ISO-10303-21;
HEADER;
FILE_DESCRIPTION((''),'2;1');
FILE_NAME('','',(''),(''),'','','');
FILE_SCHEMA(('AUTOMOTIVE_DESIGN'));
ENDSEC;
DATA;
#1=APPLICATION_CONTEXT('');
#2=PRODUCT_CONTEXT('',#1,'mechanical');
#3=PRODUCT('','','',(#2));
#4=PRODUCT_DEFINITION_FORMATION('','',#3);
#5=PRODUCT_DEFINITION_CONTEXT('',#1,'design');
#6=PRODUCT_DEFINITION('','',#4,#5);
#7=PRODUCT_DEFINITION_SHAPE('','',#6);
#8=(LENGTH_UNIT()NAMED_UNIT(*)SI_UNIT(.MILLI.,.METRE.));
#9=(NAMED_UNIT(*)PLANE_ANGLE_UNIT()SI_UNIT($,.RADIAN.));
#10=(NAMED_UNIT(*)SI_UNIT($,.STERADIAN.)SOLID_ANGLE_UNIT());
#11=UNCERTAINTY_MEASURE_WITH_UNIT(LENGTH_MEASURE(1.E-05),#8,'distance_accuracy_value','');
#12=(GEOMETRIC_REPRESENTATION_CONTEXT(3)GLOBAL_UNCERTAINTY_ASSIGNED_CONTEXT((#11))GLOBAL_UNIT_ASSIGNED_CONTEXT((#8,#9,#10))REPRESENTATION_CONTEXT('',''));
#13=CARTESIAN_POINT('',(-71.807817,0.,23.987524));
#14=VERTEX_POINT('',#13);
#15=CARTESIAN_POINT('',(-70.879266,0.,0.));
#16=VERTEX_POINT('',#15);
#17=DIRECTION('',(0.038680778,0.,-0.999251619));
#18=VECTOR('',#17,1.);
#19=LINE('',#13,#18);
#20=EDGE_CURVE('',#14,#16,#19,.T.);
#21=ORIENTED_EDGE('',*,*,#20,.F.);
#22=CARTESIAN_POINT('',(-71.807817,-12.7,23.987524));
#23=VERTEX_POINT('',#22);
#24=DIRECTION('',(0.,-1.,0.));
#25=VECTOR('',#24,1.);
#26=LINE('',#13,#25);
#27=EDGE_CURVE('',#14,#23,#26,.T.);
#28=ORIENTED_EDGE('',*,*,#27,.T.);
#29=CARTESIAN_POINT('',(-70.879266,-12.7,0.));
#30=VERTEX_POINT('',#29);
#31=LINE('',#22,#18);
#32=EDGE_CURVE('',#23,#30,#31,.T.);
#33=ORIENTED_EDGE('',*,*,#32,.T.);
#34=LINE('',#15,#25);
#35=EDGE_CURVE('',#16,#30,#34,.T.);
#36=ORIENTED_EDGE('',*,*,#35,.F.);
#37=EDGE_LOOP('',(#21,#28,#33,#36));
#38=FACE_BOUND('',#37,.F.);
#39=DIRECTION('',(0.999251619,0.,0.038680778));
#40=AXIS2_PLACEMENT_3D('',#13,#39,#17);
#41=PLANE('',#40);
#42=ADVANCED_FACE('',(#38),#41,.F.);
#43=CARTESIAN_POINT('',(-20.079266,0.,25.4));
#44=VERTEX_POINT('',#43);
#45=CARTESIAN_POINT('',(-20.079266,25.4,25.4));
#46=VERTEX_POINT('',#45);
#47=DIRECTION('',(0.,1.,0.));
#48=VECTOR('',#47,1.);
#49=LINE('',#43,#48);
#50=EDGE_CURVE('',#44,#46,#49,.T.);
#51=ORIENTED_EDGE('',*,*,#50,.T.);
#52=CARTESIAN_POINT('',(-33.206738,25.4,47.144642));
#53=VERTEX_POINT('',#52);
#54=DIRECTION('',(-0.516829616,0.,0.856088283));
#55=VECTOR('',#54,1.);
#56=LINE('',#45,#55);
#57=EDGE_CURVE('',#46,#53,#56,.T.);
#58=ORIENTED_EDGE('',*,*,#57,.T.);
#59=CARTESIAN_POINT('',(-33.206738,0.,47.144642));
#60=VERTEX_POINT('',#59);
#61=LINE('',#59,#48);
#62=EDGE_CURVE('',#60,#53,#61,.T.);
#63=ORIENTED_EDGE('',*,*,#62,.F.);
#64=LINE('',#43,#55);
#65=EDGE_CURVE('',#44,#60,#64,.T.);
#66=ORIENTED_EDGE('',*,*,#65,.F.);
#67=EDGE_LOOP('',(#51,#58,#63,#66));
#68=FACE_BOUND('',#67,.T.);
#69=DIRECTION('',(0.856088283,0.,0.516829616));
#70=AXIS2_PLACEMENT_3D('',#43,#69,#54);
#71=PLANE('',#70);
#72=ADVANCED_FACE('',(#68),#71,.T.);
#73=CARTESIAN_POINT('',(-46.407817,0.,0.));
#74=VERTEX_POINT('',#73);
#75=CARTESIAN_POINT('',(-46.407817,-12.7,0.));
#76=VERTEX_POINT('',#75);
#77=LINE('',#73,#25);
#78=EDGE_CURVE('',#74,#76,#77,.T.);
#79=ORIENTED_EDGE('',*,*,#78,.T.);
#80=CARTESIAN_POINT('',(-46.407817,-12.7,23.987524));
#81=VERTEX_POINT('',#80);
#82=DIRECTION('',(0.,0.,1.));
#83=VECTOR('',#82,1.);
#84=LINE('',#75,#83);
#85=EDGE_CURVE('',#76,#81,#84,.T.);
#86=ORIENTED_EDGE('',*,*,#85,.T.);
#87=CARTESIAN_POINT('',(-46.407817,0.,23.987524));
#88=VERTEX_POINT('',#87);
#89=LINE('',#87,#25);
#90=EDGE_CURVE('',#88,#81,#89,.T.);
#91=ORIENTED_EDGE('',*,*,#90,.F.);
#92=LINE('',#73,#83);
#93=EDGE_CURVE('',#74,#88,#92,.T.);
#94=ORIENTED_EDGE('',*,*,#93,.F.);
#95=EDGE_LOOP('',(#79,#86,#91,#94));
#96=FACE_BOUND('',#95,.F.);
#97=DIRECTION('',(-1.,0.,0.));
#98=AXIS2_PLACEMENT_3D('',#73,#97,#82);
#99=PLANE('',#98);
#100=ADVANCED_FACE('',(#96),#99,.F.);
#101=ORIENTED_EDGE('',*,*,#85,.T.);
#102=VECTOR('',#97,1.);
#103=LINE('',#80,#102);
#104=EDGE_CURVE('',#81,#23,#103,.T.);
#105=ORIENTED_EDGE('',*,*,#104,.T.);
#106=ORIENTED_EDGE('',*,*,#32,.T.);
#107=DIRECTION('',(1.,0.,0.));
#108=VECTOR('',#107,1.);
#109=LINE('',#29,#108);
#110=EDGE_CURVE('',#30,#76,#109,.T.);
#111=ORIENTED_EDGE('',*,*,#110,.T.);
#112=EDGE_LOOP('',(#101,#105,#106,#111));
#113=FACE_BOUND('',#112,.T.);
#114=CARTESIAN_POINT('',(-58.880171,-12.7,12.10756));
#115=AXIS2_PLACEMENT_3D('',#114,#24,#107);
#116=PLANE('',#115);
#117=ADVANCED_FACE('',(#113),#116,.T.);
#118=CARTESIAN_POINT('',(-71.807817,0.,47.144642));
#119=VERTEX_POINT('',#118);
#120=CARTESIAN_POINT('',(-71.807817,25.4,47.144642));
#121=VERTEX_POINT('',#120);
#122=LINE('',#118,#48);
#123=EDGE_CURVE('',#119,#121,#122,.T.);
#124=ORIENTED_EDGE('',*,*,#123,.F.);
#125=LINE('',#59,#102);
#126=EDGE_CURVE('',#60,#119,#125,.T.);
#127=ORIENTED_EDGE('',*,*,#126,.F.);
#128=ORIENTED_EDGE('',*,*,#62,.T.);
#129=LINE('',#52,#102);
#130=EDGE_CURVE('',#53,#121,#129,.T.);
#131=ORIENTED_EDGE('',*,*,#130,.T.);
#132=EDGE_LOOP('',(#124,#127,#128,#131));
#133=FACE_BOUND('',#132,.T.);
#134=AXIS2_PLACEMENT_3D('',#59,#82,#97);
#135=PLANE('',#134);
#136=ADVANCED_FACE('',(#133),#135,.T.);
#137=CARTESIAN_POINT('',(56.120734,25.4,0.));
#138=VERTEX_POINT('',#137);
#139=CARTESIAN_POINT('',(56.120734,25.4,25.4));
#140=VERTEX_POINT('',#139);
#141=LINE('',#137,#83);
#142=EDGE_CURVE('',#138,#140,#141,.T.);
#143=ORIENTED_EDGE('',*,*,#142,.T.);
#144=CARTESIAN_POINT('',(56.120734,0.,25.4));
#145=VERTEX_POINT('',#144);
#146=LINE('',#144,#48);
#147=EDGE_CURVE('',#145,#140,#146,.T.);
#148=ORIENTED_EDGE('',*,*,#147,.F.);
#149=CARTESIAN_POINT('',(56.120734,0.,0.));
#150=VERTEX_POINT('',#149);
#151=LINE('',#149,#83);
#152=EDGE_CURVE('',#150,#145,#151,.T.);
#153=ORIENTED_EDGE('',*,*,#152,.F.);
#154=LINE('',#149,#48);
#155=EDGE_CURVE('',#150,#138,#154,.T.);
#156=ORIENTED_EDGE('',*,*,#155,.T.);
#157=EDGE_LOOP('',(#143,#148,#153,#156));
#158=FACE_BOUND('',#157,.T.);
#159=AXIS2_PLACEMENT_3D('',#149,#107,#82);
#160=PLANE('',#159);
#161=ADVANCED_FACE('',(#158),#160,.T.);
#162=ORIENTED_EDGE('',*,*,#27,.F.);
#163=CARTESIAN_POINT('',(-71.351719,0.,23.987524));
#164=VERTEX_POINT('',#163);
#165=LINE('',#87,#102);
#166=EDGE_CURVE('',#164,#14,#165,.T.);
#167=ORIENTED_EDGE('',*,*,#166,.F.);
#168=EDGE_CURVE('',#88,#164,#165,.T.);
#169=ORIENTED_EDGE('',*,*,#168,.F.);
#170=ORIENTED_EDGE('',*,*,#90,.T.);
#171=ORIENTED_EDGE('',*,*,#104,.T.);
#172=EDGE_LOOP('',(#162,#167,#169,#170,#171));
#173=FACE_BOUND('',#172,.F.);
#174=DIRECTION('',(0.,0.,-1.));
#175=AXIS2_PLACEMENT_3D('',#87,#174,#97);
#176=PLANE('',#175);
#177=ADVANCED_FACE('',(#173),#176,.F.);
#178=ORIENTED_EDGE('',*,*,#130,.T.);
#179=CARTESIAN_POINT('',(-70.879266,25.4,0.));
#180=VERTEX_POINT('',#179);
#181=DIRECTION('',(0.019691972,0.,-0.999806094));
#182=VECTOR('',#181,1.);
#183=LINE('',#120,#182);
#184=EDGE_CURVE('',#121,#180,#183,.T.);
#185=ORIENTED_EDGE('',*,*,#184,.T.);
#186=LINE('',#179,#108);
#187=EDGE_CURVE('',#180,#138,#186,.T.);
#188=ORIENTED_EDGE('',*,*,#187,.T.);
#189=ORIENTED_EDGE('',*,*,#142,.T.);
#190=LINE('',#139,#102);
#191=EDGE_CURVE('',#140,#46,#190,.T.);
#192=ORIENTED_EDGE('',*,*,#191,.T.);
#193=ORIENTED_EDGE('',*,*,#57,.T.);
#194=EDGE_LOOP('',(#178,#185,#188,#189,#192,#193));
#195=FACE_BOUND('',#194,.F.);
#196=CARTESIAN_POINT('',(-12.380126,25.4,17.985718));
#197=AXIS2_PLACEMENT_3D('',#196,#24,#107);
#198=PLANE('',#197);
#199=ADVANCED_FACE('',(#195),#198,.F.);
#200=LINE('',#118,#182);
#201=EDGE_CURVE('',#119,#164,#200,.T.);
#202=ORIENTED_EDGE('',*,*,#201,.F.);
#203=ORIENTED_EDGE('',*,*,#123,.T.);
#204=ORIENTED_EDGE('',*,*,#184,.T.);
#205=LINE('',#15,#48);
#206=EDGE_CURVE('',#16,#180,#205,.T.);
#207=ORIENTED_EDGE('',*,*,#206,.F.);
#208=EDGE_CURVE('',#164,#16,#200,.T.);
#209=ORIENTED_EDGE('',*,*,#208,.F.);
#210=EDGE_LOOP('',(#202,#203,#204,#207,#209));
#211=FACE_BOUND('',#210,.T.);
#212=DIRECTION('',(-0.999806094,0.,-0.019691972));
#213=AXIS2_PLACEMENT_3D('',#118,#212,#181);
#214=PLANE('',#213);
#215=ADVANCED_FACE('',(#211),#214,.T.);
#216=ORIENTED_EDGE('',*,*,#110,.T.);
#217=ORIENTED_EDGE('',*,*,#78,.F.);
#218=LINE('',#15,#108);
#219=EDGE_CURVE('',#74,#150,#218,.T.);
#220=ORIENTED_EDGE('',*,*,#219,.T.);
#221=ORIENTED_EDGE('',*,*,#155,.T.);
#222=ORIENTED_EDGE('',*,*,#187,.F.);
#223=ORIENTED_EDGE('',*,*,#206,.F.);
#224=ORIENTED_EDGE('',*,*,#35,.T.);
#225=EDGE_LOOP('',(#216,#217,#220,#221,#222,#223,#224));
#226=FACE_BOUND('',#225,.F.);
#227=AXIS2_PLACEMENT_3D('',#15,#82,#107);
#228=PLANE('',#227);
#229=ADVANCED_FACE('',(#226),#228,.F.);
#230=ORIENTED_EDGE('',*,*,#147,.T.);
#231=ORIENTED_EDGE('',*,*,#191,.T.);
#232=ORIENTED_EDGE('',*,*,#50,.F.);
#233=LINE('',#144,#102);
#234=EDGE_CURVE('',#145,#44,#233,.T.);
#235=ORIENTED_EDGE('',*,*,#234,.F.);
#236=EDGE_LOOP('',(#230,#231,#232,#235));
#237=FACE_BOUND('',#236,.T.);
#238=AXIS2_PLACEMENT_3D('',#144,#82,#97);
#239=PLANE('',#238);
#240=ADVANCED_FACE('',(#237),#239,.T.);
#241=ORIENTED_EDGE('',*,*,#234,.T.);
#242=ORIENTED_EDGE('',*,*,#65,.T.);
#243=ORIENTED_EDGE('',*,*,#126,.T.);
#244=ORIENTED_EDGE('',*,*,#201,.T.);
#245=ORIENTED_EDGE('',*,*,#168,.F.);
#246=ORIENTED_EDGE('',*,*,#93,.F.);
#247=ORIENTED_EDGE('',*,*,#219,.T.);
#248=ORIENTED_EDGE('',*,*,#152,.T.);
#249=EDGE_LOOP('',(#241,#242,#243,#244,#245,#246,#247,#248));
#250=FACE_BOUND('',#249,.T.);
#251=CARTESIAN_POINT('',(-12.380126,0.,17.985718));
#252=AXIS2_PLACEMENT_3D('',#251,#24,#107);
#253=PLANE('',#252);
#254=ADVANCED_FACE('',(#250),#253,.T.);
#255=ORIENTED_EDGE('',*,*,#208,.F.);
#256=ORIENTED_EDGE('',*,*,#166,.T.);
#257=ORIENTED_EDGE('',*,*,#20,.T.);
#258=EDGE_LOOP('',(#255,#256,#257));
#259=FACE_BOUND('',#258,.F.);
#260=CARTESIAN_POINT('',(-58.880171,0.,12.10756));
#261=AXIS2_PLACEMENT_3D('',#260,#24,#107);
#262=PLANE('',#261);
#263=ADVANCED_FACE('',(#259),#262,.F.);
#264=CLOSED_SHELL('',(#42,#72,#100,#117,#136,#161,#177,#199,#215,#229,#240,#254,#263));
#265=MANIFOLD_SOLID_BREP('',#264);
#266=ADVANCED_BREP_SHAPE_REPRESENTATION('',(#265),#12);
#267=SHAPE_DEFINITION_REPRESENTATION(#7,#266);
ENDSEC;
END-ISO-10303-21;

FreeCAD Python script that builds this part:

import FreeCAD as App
import Part
import Sketcher
from FreeCAD import Vector
Q = App.Units.Quantity

doc = App.newDocument("Part")
body = doc.addObject("PartDesign::Body", "Body")

# Sketch on XZ plane
sketch1 = body.newObject("Sketcher::SketchObject", "Sketch")
sketch1.AttachmentSupport = (doc.getObject("XZ_Plane"), [""])
sketch1.MapMode = "FlatFace"
sketch1.addGeometry([
    Part.LineSegment(Vector(-72, 47, 0), Vector(-71, 0, 0)),  # 0
    Part.LineSegment(Vector(-71, 0, 0), Vector(56, 0, 0)),  # 1
    Part.LineSegment(Vector(56, 0, 0), Vector(56, 25, 0)),  # 2
    Part.LineSegment(Vector(56, 25, 0), Vector(-20, 25, 0)),  # 3
    Part.LineSegment(Vector(-20, 25, 0), Vector(-33, 47, 0)),  # 4
    Part.LineSegment(Vector(-33, 47, 0), Vector(-72, 47, 0)),  # 5
], False)
sketch1.addConstraint([
    Sketcher.Constraint("Coincident", 0, 2, 1, 1),
    Sketcher.Constraint("Coincident", 1, 2, 2, 1),
    Sketcher.Constraint("Coincident", 2, 2, 3, 1),
    Sketcher.Constraint("Coincident", 3, 2, 4, 1),
    Sketcher.Constraint("Coincident", 4, 2, 5, 1),
    Sketcher.Constraint("Coincident", 5, 2, 0, 1),
    Sketcher.Constraint("Horizontal", 1),
    Sketcher.Constraint("Vertical", 2),
    Sketcher.Constraint("Horizontal", 3),
    Sketcher.Constraint("Horizontal", 5),
    Sketcher.Constraint("PointOnObject", 0, 2, -1),
    Sketcher.Constraint("DistanceX", 1, 1, 1, 2, Q("5 in")),
    Sketcher.Constraint("DistanceX", 3, 2, 3, 1, Q("3 in")),
    Sketcher.Constraint("DistanceY", 2, 1, 2, 2, Q("1 in")),
    Sketcher.Constraint("Distance", 4, Q("1 in")),
    Sketcher.Constraint("DistanceX", 5, 2, 5, 1, Q("38.601079 mm")),
    Sketcher.Constraint("DistanceY", -1, 1, 4, 2, Q("47.144642 mm")),
    Sketcher.Constraint("DistanceX", 0, 2, -1, 1, Q("70.879266 mm")),
])
pad1 = body.newObject("PartDesign::Pad", "Pad")
pad1.Profile = sketch1
pad1.Length = Q("1 in")
pad1.Reversed = True

# Sketch on XZ plane
sketch2 = body.newObject("Sketcher::SketchObject", "Sketch001")
sketch2.AttachmentSupport = (doc.getObject("XZ_Plane"), [""])
sketch2.MapMode = "FlatFace"
sketch2.addGeometry([
    Part.LineSegment(Vector(-46, 24, 0), Vector(-72, 24, 0)),
    Part.LineSegment(Vector(-72, 24, 0), Vector(-71, 0, 0)),
    Part.LineSegment(Vector(-71, 0, 0), Vector(-46, 0, 0)),
    Part.LineSegment(Vector(-46, 0, 0), Vector(-46, 24, 0)),
], False)
sketch2.addConstraint([
    Sketcher.Constraint("Coincident", 0, 2, 1, 1),
    Sketcher.Constraint("Coincident", 1, 2, 2, 1),
    Sketcher.Constraint("Coincident", 2, 2, 3, 1),
    Sketcher.Constraint("Coincident", 3, 2, 0, 1),
    Sketcher.Constraint("Horizontal", 0),
    Sketcher.Constraint("Horizontal", 2),
    Sketcher.Constraint("Vertical", 3),
    Sketcher.Constraint("PointOnObject", 1, 2, -1),
    Sketcher.Constraint("DistanceX", 0, 2, 0, 1, Q("1 in")),
    Sketcher.Constraint("DistanceX", 2, 1, 2, 2, Q("24.471449 mm")),
    Sketcher.Constraint("Distance", 1, Q("24.005489 mm")),
    Sketcher.Constraint("DistanceX", 0, 2, -1, 1, Q("71.807817 mm")),
])
pad2 = body.newObject("PartDesign::Pad", "Pad001")
pad2.Profile = sketch2
pad2.Length = Q("0.5 in")

doc.recompute()
